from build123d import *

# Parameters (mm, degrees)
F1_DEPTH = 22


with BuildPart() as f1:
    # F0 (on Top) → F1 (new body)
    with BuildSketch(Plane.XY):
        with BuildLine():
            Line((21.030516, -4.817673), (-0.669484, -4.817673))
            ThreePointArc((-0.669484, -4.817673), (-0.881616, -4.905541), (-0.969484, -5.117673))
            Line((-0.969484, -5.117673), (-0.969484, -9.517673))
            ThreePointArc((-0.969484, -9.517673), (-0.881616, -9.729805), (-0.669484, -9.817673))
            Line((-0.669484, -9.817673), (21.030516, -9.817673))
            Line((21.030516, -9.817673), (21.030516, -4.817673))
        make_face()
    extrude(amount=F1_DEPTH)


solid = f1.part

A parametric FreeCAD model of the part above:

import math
import FreeCAD as App
import Part
import Sketcher

V = App.Vector
Q = App.Units.Quantity

doc = App.newDocument("Part")
params = doc.addObject("Spreadsheet::Sheet", "Params")
for row, (alias, value) in enumerate([
    ("sketch1_radius", "0.3 mm"),
    ("sketch1_height", "5 mm"),
    ("sketch1_width", "21.7 mm"),
    ("pad1_length", "22 mm"),
], start=1):
    params.set(f"A{row}", alias)
    params.set(f"B{row}", "=" + value)
    params.setAlias(f"B{row}", alias)

body = doc.addObject("PartDesign::Body", "Body")

# Sketch on XY plane
sketch1 = doc.addObject("Sketcher::SketchObject", "Sketch")
body.addObject(sketch1)
sketch1.AttachmentSupport = (doc.XY_Plane, [""])
sketch1.MapMode = "FlatFace"
sketch1.addGeometry([
    Part.LineSegment(V(21.03, -4.82, 0), V(-0.67, -4.82, 0)),  # 0
    Part.ArcOfCircle(Part.Circle(V(-0.67, -5.12, 0), V(0, 0, 1), 0.3), math.radians(90), math.radians(180)),  # 1
    Part.LineSegment(V(-0.97, -5.12, 0), V(-0.97, -9.52, 0)),  # 2
    Part.ArcOfCircle(Part.Circle(V(-0.67, -9.52, 0), V(0, 0, 1), 0.3), math.radians(-180), math.radians(-90)),  # 3
    Part.LineSegment(V(-0.67, -9.82, 0), V(21.03, -9.82, 0)),  # 4
    Part.LineSegment(V(21.03, -9.82, 0), V(21.03, -4.82, 0)),  # 5
], False)
sketch1.addConstraint([
    Sketcher.Constraint("Tangent", 0, 2, 1, 1),
    Sketcher.Constraint("Tangent", 1, 2, 2, 1),
    Sketcher.Constraint("Tangent", 2, 2, 3, 1),
    Sketcher.Constraint("Tangent", 3, 2, 4, 1),
    Sketcher.Constraint("Coincident", 4, 2, 5, 1),
    Sketcher.Constraint("Coincident", 5, 2, 0, 1),
    Sketcher.Constraint("Horizontal", 0),
    Sketcher.Constraint("Vertical", 2),
    Sketcher.Constraint("Horizontal", 4),
    Sketcher.Constraint("Vertical", 5),
    Sketcher.Constraint("Equal", 1, 3),
    Sketcher.Constraint("Radius", 1, Q("0.3 mm")),
    Sketcher.Constraint("DistanceY", 5, 1, 5, 2, Q("5 mm")),
    Sketcher.Constraint("DistanceX", 0, 2, 0, 1, Q("21.7 mm")),
    Sketcher.Constraint("DistanceX", 1, 3, -1, 1, Q("0.669484 mm")),
    Sketcher.Constraint("DistanceY", 1, 3, -1, 1, Q("5.117673 mm")),
])
sketch1.setExpression("Constraints[11]", "Params.sketch1_radius")
sketch1.setExpression("Constraints[12]", "Params.sketch1_height")
sketch1.setExpression("Constraints[13]", "Params.sketch1_width")
pad1 = doc.addObject("PartDesign::Pad", "Pad")
body.addObject(pad1)
pad1.Profile = sketch1
pad1.setExpression("Length", "Params.pad1_length")

doc.recompute()
